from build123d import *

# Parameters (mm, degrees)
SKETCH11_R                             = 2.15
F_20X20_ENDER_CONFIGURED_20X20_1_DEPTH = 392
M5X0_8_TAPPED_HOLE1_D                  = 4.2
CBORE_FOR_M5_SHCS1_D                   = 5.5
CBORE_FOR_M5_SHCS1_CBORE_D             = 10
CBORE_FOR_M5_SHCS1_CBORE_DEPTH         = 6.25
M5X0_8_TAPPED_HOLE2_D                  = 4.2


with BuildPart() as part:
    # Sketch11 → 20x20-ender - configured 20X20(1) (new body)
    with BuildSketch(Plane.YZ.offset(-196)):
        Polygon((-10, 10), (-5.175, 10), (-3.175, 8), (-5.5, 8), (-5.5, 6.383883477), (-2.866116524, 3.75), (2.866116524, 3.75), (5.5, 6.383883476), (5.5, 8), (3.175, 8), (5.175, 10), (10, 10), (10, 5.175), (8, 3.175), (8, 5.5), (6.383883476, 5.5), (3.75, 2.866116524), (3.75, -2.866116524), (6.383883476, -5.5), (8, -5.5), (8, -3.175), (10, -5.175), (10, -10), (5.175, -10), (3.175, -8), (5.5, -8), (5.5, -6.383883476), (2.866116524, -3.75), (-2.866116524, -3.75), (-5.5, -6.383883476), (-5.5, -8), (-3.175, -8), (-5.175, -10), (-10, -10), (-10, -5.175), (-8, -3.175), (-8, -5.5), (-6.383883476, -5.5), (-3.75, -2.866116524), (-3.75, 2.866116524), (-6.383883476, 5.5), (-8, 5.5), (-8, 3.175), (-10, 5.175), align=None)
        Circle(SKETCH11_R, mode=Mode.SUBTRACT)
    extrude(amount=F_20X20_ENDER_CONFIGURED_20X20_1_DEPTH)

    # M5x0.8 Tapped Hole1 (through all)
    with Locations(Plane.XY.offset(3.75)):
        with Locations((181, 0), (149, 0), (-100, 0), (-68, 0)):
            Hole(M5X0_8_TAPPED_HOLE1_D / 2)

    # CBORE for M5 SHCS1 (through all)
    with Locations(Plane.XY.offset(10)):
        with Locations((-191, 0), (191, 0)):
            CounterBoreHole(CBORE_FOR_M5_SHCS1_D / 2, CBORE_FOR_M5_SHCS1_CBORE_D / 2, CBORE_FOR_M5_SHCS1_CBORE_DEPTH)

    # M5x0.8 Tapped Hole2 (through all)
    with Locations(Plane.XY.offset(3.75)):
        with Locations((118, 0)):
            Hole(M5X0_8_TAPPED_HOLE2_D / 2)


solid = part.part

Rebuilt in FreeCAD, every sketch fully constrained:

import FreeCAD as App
import Part
import Sketcher

doc = App.newDocument("Part")
body = doc.addObject("PartDesign::Body", "Body")

sketch1 = body.newObject("Sketcher::SketchObject", "Sketch")
sketch1.AttachmentSupport = (doc.getObject("YZ_Plane"), [""])
sketch1.MapMode = "FlatFace"
sketch1.AttachmentOffset = App.Placement(App.Vector(0, 0, -196), App.Rotation())
sketch1.addGeometry(Part.LineSegment(App.Vector(-5.2, 10, 0), App.Vector(-10, 10, 0)), False)
sketch1.addGeometry(Part.LineSegment(App.Vector(-10, 10, 0), App.Vector(-10, 5.2, 0)), False)
sketch1.addGeometry(Part.LineSegment(App.Vector(-10, 5.2, 0), App.Vector(-8, 3.2, 0)), False)
sketch1.addGeometry(Part.LineSegment(App.Vector(-8, 3.2, 0), App.Vector(-8, 5.5, 0)), False)
sketch1.addGeometry(Part.LineSegment(App.Vector(-8, 5.5, 0), App.Vector(-6.4, 5.5, 0)), False)
sketch1.addGeometry(Part.LineSegment(App.Vector(-6.4, 5.5, 0), App.Vector(-3.8, 2.9, 0)), False)
sketch1.addGeometry(Part.LineSegment(App.Vector(-3.8, 2.9, 0), App.Vector(-3.8, -2.9, 0)), False)
sketch1.addGeometry(Part.LineSegment(App.Vector(-3.8, -2.9, 0), App.Vector(-6.4, -5.5, 0)), False)
sketch1.addGeometry(Part.LineSegment(App.Vector(-6.4, -5.5, 0), App.Vector(-8, -5.5, 0)), False)
sketch1.addGeometry(Part.LineSegment(App.Vector(-8, -5.5, 0), App.Vector(-8, -3.2, 0)), False)
sketch1.addGeometry(Part.LineSegment(App.Vector(-8, -3.2, 0), App.Vector(-10, -5.2, 0)), False)
sketch1.addGeometry(Part.LineSegment(App.Vector(-10, -5.2, 0), App.Vector(-10, -10, 0)), False)
sketch1.addGeometry(Part.LineSegment(App.Vector(-10, -10, 0), App.Vector(-5.2, -10, 0)), False)
sketch1.addGeometry(Part.LineSegment(App.Vector(-5.2, -10, 0), App.Vector(-3.2, -8, 0)), False)
sketch1.addGeometry(Part.LineSegment(App.Vector(-3.2, -8, 0), App.Vector(-5.5, -8, 0)), False)
sketch1.addGeometry(Part.LineSegment(App.Vector(-5.5, -8, 0), App.Vector(-5.5, -6.4, 0)), False)
sketch1.addGeometry(Part.LineSegment(App.Vector(-5.5, -6.4, 0), App.Vector(-2.9, -3.8, 0)), False)
sketch1.addGeometry(Part.LineSegment(App.Vector(-2.9, -3.8, 0), App.Vector(2.9, -3.8, 0)), False)
sketch1.addGeometry(Part.LineSegment(App.Vector(2.9, -3.8, 0), App.Vector(5.5, -6.4, 0)), False)
sketch1.addGeometry(Part.LineSegment(App.Vector(5.5, -6.4, 0), App.Vector(5.5, -8, 0)), False)
sketch1.addGeometry(Part.LineSegment(App.Vector(5.5, -8, 0), App.Vector(3.2, -8, 0)), False)
sketch1.addGeometry(Part.LineSegment(App.Vector(3.2, -8, 0), App.Vector(5.2, -10, 0)), False)
sketch1.addGeometry(Part.LineSegment(App.Vector(5.2, -10, 0), App.Vector(10, -10, 0)), False)
sketch1.addGeometry(Part.LineSegment(App.Vector(10, -10, 0), App.Vector(10, -5.2, 0)), False)
sketch1.addGeometry(Part.LineSegment(App.Vector(10, -5.2, 0), App.Vector(8, -3.2, 0)), False)
sketch1.addGeometry(Part.LineSegment(App.Vector(8, -3.2, 0), App.Vector(8, -5.5, 0)), False)
sketch1.addGeometry(Part.LineSegment(App.Vector(8, -5.5, 0), App.Vector(6.4, -5.5, 0)), False)
sketch1.addGeometry(Part.LineSegment(App.Vector(6.4, -5.5, 0), App.Vector(3.8, -2.9, 0)), False)
sketch1.addGeometry(Part.LineSegment(App.Vector(3.8, -2.9, 0), App.Vector(3.8, 2.9, 0)), False)
sketch1.addGeometry(Part.LineSegment(App.Vector(3.8, 2.9, 0), App.Vector(6.4, 5.5, 0)), False)
sketch1.addGeometry(Part.LineSegment(App.Vector(6.4, 5.5, 0), App.Vector(8, 5.5, 0)), False)
sketch1.addGeometry(Part.LineSegment(App.Vector(8, 5.5, 0), App.Vector(8, 3.2, 0)), False)
sketch1.addGeometry(Part.LineSegment(App.Vector(8, 3.2, 0), App.Vector(10, 5.2, 0)), False)
sketch1.addGeometry(Part.LineSegment(App.Vector(10, 5.2, 0), App.Vector(10, 10, 0)), False)
sketch1.addGeometry(Part.LineSegment(App.Vector(10, 10, 0), App.Vector(5.2, 10, 0)), False)
sketch1.addGeometry(Part.LineSegment(App.Vector(5.2, 10, 0), App.Vector(3.2, 8, 0)), False)
sketch1.addGeometry(Part.LineSegment(App.Vector(3.2, 8, 0), App.Vector(5.5, 8, 0)), False)
sketch1.addGeometry(Part.LineSegment(App.Vector(5.5, 8, 0), App.Vector(5.5, 6.4, 0)), False)
sketch1.addGeometry(Part.LineSegment(App.Vector(5.5, 6.4, 0), App.Vector(2.9, 3.8, 0)), False)
sketch1.addGeometry(Part.LineSegment(App.Vector(2.9, 3.8, 0), App.Vector(-2.9, 3.8, 0)), False)
sketch1.addGeometry(Part.LineSegment(App.Vector(-2.9, 3.8, 0), App.Vector(-5.5, 6.4, 0)), False)
sketch1.addGeometry(Part.LineSegment(App.Vector(-5.5, 6.4, 0), App.Vector(-5.5, 8, 0)), False)
sketch1.addGeometry(Part.LineSegment(App.Vector(-5.5, 8, 0), App.Vector(-3.2, 8, 0)), False)
sketch1.addGeometry(Part.LineSegment(App.Vector(-3.2, 8, 0), App.Vector(-5.2, 10, 0)), False)
sketch1.addGeometry(Part.Circle(App.Vector(0, 0, 0), App.Vector(0, 0, 1), 2.1), False)
sketch1.addConstraint(Sketcher.Constraint("Coincident", 0, 2, 1, 1))
sketch1.addConstraint(Sketcher.Constraint("Coincident", 1, 2, 2, 1))
sketch1.addConstraint(Sketcher.Constraint("Coincident", 2, 2, 3, 1))
sketch1.addConstraint(Sketcher.Constraint("Coincident", 3, 2, 4, 1))
sketch1.addConstraint(Sketcher.Constraint("Coincident", 4, 2, 5, 1))
sketch1.addConstraint(Sketcher.Constraint("Coincident", 5, 2, 6, 1))
sketch1.addConstraint(Sketcher.Constraint("Coincident", 6, 2, 7, 1))
sketch1.addConstraint(Sketcher.Constraint("Coincident", 7, 2, 8, 1))
sketch1.addConstraint(Sketcher.Constraint("Coincident", 8, 2, 9, 1))
sketch1.addConstraint(Sketcher.Constraint("Coincident", 9, 2, 10, 1))
sketch1.addConstraint(Sketcher.Constraint("Coincident", 10, 2, 11, 1))
sketch1.addConstraint(Sketcher.Constraint("Coincident", 11, 2, 12, 1))
sketch1.addConstraint(Sketcher.Constraint("Coincident", 12, 2, 13, 1))
sketch1.addConstraint(Sketcher.Constraint("Coincident", 13, 2, 14, 1))
sketch1.addConstraint(Sketcher.Constraint("Coincident", 14, 2, 15, 1))
sketch1.addConstraint(Sketcher.Constraint("Coincident", 15, 2, 16, 1))
sketch1.addConstraint(Sketcher.Constraint("Coincident", 16, 2, 17, 1))
sketch1.addConstraint(Sketcher.Constraint("Coincident", 17, 2, 18, 1))
sketch1.addConstraint(Sketcher.Constraint("Coincident", 18, 2, 19, 1))
sketch1.addConstraint(Sketcher.Constraint("Coincident", 19, 2, 20, 1))
sketch1.addConstraint(Sketcher.Constraint("Coincident", 20, 2, 21, 1))
sketch1.addConstraint(Sketcher.Constraint("Coincident", 21, 2, 22, 1))
sketch1.addConstraint(Sketcher.Constraint("Coincident", 22, 2, 23, 1))
sketch1.addConstraint(Sketcher.Constraint("Coincident", 23, 2, 24, 1))
sketch1.addConstraint(Sketcher.Constraint("Coincident", 24, 2, 25, 1))
sketch1.addConstraint(Sketcher.Constraint("Coincident", 25, 2, 26, 1))
sketch1.addConstraint(Sketcher.Constraint("Coincident", 26, 2, 27, 1))
sketch1.addConstraint(Sketcher.Constraint("Coincident", 27, 2, 28, 1))
sketch1.addConstraint(Sketcher.Constraint("Coincident", 28, 2, 29, 1))
sketch1.addConstraint(Sketcher.Constraint("Coincident", 29, 2, 30, 1))
sketch1.addConstraint(Sketcher.Constraint("Coincident", 30, 2, 31, 1))
sketch1.addConstraint(Sketcher.Constraint("Coincident", 31, 2, 32, 1))
sketch1.addConstraint(Sketcher.Constraint("Coincident", 32, 2, 33, 1))
sketch1.addConstraint(Sketcher.Constraint("Coincident", 33, 2, 34, 1))
sketch1.addConstraint(Sketcher.Constraint("Coincident", 34, 2, 35, 1))
sketch1.addConstraint(Sketcher.Constraint("Coincident", 35, 2, 36, 1))
sketch1.addConstraint(Sketcher.Constraint("Coincident", 36, 2, 37, 1))
sketch1.addConstraint(Sketcher.Constraint("Coincident", 37, 2, 38, 1))
sketch1.addConstraint(Sketcher.Constraint("Coincident", 38, 2, 39, 1))
sketch1.addConstraint(Sketcher.Constraint("Coincident", 39, 2, 40, 1))
sketch1.addConstraint(Sketcher.Constraint("Coincident", 40, 2, 41, 1))
sketch1.addConstraint(Sketcher.Constraint("Coincident", 41, 2, 42, 1))
sketch1.addConstraint(Sketcher.Constraint("Coincident", 42, 2, 43, 1))
sketch1.addConstraint(Sketcher.Constraint("Coincident", 43, 2, 0, 1))
sketch1.addConstraint(Sketcher.Constraint("Horizontal", 0))
sketch1.addConstraint(Sketcher.Constraint("Vertical", 1))
sketch1.addConstraint(Sketcher.Constraint("Vertical", 3))
sketch1.addConstraint(Sketcher.Constraint("Horizontal", 4))
sketch1.addConstraint(Sketcher.Constraint("Vertical", 6))
sketch1.addConstraint(Sketcher.Constraint("Horizontal", 8))
sketch1.addConstraint(Sketcher.Constraint("Vertical", 9))
sketch1.addConstraint(Sketcher.Constraint("Vertical", 11))
sketch1.addConstraint(Sketcher.Constraint("Horizontal", 12))
sketch1.addConstraint(Sketcher.Constraint("Horizontal", 14))
sketch1.addConstraint(Sketcher.Constraint("Vertical", 15))
sketch1.addConstraint(Sketcher.Constraint("Horizontal", 17))
sketch1.addConstraint(Sketcher.Constraint("Vertical", 19))
sketch1.addConstraint(Sketcher.Constraint("Horizontal", 20))
sketch1.addConstraint(Sketcher.Constraint("Horizontal", 22))
sketch1.addConstraint(Sketcher.Constraint("Vertical", 23))
sketch1.addConstraint(Sketcher.Constraint("Vertical", 25))
sketch1.addConstraint(Sketcher.Constraint("Horizontal", 26))
sketch1.addConstraint(Sketcher.Constraint("Vertical", 28))
sketch1.addConstraint(Sketcher.Constraint("Horizontal", 30))
sketch1.addConstraint(Sketcher.Constraint("Vertical", 31))
sketch1.addConstraint(Sketcher.Constraint("Vertical", 33))
sketch1.addConstraint(Sketcher.Constraint("Horizontal", 34))
sketch1.addConstraint(Sketcher.Constraint("Horizontal", 36))
sketch1.addConstraint(Sketcher.Constraint("Vertical", 37))
sketch1.addConstraint(Sketcher.Constraint("Horizontal", 39))
sketch1.addConstraint(Sketcher.Constraint("Vertical", 41))
sketch1.addConstraint(Sketcher.Constraint("Horizontal", 42))
sketch1.addConstraint(Sketcher.Constraint("Coincident", 44, 3, -1, 1))
sketch1.addConstraint(Sketcher.Constraint("Symmetric", 0, 2, 22, 2, -1, 1))
sketch1.addConstraint(Sketcher.Constraint("Symmetric", 2, 2, 24, 2, -1, 1))
sketch1.addConstraint(Sketcher.Constraint("Symmetric", 4, 2, 26, 2, -1, 1))
sketch1.addConstraint(Sketcher.Constraint("Symmetric", 5, 2, 27, 2, -1, 1))
sketch1.addConstraint(Sketcher.Constraint("Symmetric", 7, 2, 29, 2, -1, 1))
sketch1.addConstraint(Sketcher.Constraint("Symmetric", 9, 2, 31, 2, -1, 1))
sketch1.addConstraint(Sketcher.Constraint("Symmetric", 10, 2, 32, 2, -1, 1))
sketch1.addConstraint(Sketcher.Constraint("Symmetric", 12, 2, 34, 2, -1, 1))
sketch1.addConstraint(Sketcher.Constraint("Symmetric", 13, 2, 35, 2, -1, 1))
sketch1.addConstraint(Sketcher.Constraint("Symmetric", 15, 2, 37, 2, -1, 1))
sketch1.addConstraint(Sketcher.Constraint("Symmetric", 16, 2, 38, 2, -1, 1))
sketch1.addConstraint(Sketcher.Constraint("Symmetric", 18, 2, 40, 2, -1, 1))
sketch1.addConstraint(Sketcher.Constraint("Symmetric", 20, 2, 42, 2, -1, 1))
sketch1.addConstraint(Sketcher.Constraint("Symmetric", 15, 2, 18, 2, -2))
sketch1.addConstraint(Sketcher.Constraint("Symmetric", 13, 2, 20, 2, -2))
sketch1.addConstraint(Sketcher.Constraint("Symmetric", 12, 2, 21, 2, -2))
sketch1.addConstraint(Sketcher.Constraint("Symmetric", 10, 2, 23, 2, -2))
sketch1.addConstraint(Sketcher.Constraint("Symmetric", 9, 2, 24, 2, -2))
sketch1.addConstraint(Sketcher.Constraint("Symmetric", 7, 2, 26, 2, -2))
sketch1.addConstraint(Sketcher.Constraint("Parallel", 2, 5))
sketch1.addConstraint(Sketcher.Constraint("Perpendicular", 5, 7))
sketch1.addConstraint(Sketcher.Constraint("Parallel", 7, 10))
sketch1.addConstraint(Sketcher.Constraint("Parallel", 10, 13))
sketch1.addConstraint(Sketcher.Constraint("Parallel", 13, 16))
sketch1.addConstraint(Sketcher.Constraint("Perpendicular", 16, 18))
sketch1.addConstraint(Sketcher.Constraint("Parallel", 18, 21))
sketch1.addConstraint(Sketcher.Constraint("Perpendicular", 27, 29))
sketch1.addConstraint(Sketcher.Constraint("Perpendicular", 38, 40))
sketch1.addConstraint(Sketcher.Constraint("Parallel", 40, 43))
sketch1.addConstraint(Sketcher.Constraint("Equal", 34, 1))
sketch1.addConstraint(Sketcher.Constraint("Equal", 42, 3))
sketch1.addConstraint(Sketcher.Constraint("Equal", 39, 6))
sketch1.addConstraint(Sketcher.Constraint("Equal", 30, 15))
sketch1.addConstraint(Sketcher.Constraint("Equal", 10, 13))
sketch1.addConstraint(Sketcher.Constraint("Equal", 7, 16))
sketch1.addConstraint(Sketcher.Constraint("Diameter", 44, 4.3))
sketch1.addConstraint(Sketcher.Constraint("DistanceX", 0, 2, -1, 1, 10.0))
sketch1.addConstraint(Sketcher.Constraint("DistanceX", 2, 2, -1, 1, 8.0))
sketch1.addConstraint(Sketcher.Constraint("DistanceY", 7, 2, 4, 2, 11.0))
sketch1.addConstraint(Sketcher.Constraint("DistanceX", 5, 2, 28, 2, 7.5))
sketch1.addConstraint(Sketcher.Constraint("DistanceX", 0, 2, 0, 1, 4.825))
sketch1.addConstraint(Sketcher.Constraint("DistanceX", 4, 1, 4, 2, 1.616117))
pad1 = body.newObject("PartDesign::Pad", "Pad")
pad1.Profile = sketch1
pad1.Length = 392

sketch2 = body.newObject("Sketcher::SketchObject", "Sketch001")
sketch2.AttachmentSupport = (doc.getObject("XY_Plane"), [""])
sketch2.MapMode = "FlatFace"
sketch2.AttachmentOffset = App.Placement(App.Vector(0, 0, 3.75), App.Rotation())
sketch2.addGeometry(Part.Circle(App.Vector(181, 0, 0), App.Vector(0, 0, 1), 2.1), False)
sketch2.addGeometry(Part.Circle(App.Vector(149, 0, 0), App.Vector(0, 0, 1), 2.1), False)
sketch2.addGeometry(Part.Circle(App.Vector(-100, 0, 0), App.Vector(0, 0, 1), 2.1), False)
sketch2.addGeometry(Part.Circle(App.Vector(-68, 0, 0), App.Vector(0, 0, 1), 2.1), False)
sketch2.addConstraint(Sketcher.Constraint("Equal", 0, 1))
sketch2.addConstraint(Sketcher.Constraint("Equal", 1, 2))
sketch2.addConstraint(Sketcher.Constraint("Equal", 2, 3))
sketch2.addConstraint(Sketcher.Constraint("PointOnObject", 0, 3, -1))
sketch2.addConstraint(Sketcher.Constraint("PointOnObject", 1, 3, -1))
sketch2.addConstraint(Sketcher.Constraint("PointOnObject", 2, 3, -1))
sketch2.addConstraint(Sketcher.Constraint("PointOnObject", 3, 3, -1))
sketch2.addConstraint(Sketcher.Constraint("Diameter", 0, 4.2))
sketch2.addConstraint(Sketcher.Constraint("DistanceX", -1, 1, 0, 3, 181.0))
sketch2.addConstraint(Sketcher.Constraint("DistanceX", -1, 1, 1, 3, 149.0))
sketch2.addConstraint(Sketcher.Constraint("DistanceX", 2, 3, -1, 1, 100.0))
sketch2.addConstraint(Sketcher.Constraint("DistanceX", 3, 3, -1, 1, 68.0))
doc.recompute()
hole = body.newObject("PartDesign::Hole", "Hole")
hole.Profile = sketch2
hole.ThreadType = "None"
hole.Diameter = 4.2
hole.DepthType = "ThroughAll"

sketch3 = body.newObject("Sketcher::SketchObject", "Sketch002")
sketch3.AttachmentSupport = (doc.getObject("XY_Plane"), [""])
sketch3.MapMode = "FlatFace"
sketch3.AttachmentOffset = App.Placement(App.Vector(0, 0, 10), App.Rotation())
sketch3.addGeometry(Part.Circle(App.Vector(-191, 0, 0), App.Vector(0, 0, 1), 2.8), False)
sketch3.addGeometry(Part.Circle(App.Vector(191, 0, 0), App.Vector(0, 0, 1), 2.8), False)
sketch3.addConstraint(Sketcher.Constraint("Equal", 0, 1))
sketch3.addConstraint(Sketcher.Constraint("Symmetric", 0, 3, 1, 3, -1, 1))
sketch3.addConstraint(Sketcher.Constraint("PointOnObject", 0, 3, -1))
sketch3.addConstraint(Sketcher.Constraint("Diameter", 0, 5.5))
sketch3.addConstraint(Sketcher.Constraint("DistanceX", 0, 3, -1, 1, 191.0))
doc.recompute()
hole2 = body.newObject("PartDesign::Hole", "Hole001")
hole2.Profile = sketch3
hole2.ThreadType = "None"
hole2.Diameter = 5.5
hole2.DepthType = "ThroughAll"
hole2.HoleCutType = "Counterbore"
hole2.HoleCutDiameter = 10
hole2.HoleCutDepth = 6.25

sketch4 = body.newObject("Sketcher::SketchObject", "Sketch003")
sketch4.AttachmentSupport = (doc.getObject("XY_Plane"), [""])
sketch4.MapMode = "FlatFace"
sketch4.AttachmentOffset = App.Placement(App.Vector(0, 0, 3.75), App.Rotation())
sketch4.addGeometry(Part.Circle(App.Vector(118, 0, 0), App.Vector(0, 0, 1), 2.1), False)
sketch4.addConstraint(Sketcher.Constraint("PointOnObject", 0, 3, -1))
sketch4.addConstraint(Sketcher.Constraint("Diameter", 0, 4.2))
sketch4.addConstraint(Sketcher.Constraint("DistanceX", -1, 1, 0, 3, 118.0))
doc.recompute()
hole3 = body.newObject("PartDesign::Hole", "Hole002")
hole3.Profile = sketch4
hole3.ThreadType = "None"
hole3.Diameter = 4.2
hole3.DepthType = "ThroughAll"

doc.recompute()
